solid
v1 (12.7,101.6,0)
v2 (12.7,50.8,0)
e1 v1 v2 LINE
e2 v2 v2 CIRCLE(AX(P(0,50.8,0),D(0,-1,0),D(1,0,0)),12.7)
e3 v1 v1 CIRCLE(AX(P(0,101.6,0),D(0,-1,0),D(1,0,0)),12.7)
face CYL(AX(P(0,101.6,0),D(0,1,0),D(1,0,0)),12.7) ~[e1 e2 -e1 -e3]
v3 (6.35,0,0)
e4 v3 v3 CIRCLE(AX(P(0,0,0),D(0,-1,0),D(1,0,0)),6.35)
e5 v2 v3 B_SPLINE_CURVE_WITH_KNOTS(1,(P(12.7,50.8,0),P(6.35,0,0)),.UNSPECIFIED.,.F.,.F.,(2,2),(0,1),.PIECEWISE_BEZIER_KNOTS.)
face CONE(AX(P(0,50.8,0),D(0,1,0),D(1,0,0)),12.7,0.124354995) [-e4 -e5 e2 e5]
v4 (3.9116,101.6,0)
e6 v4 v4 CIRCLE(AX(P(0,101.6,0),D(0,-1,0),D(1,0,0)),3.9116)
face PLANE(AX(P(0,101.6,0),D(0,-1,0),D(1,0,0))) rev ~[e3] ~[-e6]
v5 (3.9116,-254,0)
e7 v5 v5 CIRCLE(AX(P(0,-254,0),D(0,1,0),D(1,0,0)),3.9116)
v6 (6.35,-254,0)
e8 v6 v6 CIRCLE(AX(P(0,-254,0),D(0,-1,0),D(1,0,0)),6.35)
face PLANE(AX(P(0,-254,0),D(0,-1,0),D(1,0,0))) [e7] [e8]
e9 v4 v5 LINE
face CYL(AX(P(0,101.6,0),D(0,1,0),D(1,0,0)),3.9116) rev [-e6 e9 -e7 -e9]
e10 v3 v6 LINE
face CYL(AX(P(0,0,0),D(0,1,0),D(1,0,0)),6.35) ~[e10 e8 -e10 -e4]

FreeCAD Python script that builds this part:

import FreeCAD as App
import Part
import Sketcher

V = App.Vector
Q = App.Units.Quantity

doc = App.newDocument("Part")
body = doc.addObject("PartDesign::Body", "Body")

# Sketch on XZ plane
sketch1 = doc.addObject("Sketcher::SketchObject", "Sketch")
body.addObject(sketch1)
sketch1.AttachmentSupport = (doc.XZ_Plane, [""])
sketch1.MapMode = "FlatFace"
sketch1.addGeometry(Part.Circle(V(0, 0, 0), V(0, 0, 1), 6), False)
sketch1.addConstraint(Sketcher.Constraint("Coincident", 0, 3, -1, 1))
sketch1.addConstraint(Sketcher.Constraint("Diameter", 0, Q("0.5 in")))
pad1 = doc.addObject("PartDesign::Pad", "Pad")
body.addObject(pad1)
pad1.Profile = sketch1
pad1.Length = Q("10 in")
body2 = doc.addObject("PartDesign::Body", "Body001")

# Sketch on XZ plane
sketch2 = doc.addObject("Sketcher::SketchObject", "Sketch001")
body2.addObject(sketch2)
sketch2.AttachmentSupport = (doc.getObject("XZ_Plane001"), [""])
sketch2.MapMode = "FlatFace"
sketch2.AttachmentOffset = App.Placement(V(0, 0, -4 * 25.4), App.Rotation())
sketch2.addGeometry(Part.Circle(V(0, 0, 0), V(0, 0, 1), 13), False)
sketch2.addConstraint(Sketcher.Constraint("Coincident", 0, 3, -1, 1))
sketch2.addConstraint(Sketcher.Constraint("Diameter", 0, Q("1 in")))
pad2 = doc.addObject("PartDesign::Pad", "Pad001")
body2.addObject(pad2)
pad2.Profile = sketch2
pad2.Length = Q("2 in")
body.AllowCompound = True
doc.recompute()

boolean = doc.addObject("PartDesign::Boolean", "Boolean")
body.addObject(boolean)
boolean.Type = "Fuse"
boolean.addObjects([body2])

# Sketch on XZ plane
sketch3 = doc.addObject("Sketcher::SketchObject", "Sketch002")
body.addObject(sketch3)
sketch3.AttachmentSupport = (doc.XZ_Plane, [""])
sketch3.MapMode = "FlatFace"
sketch3.AttachmentOffset = App.Placement(V(0, 0, -2 * 25.4), App.Rotation())
sketch3.addGeometry(Part.Circle(V(0, 0, 0), V(0, 0, 1), 13), False)
sketch3.addConstraint(Sketcher.Constraint("Coincident", 0, 3, -1, 1))
sketch3.addConstraint(Sketcher.Constraint("Diameter", 0, Q("1 in")))

# Sketch on XZ plane
sketch4 = doc.addObject("Sketcher::SketchObject", "Sketch003")
body.addObject(sketch4)
sketch4.AttachmentSupport = (doc.XZ_Plane, [""])
sketch4.MapMode = "FlatFace"
sketch4.addGeometry(Part.Circle(V(0, 0, 0), V(0, 0, 1), 6), False)
sketch4.addConstraint(Sketcher.Constraint("Coincident", 0, 3, -1, 1))
sketch4.addConstraint(Sketcher.Constraint("Diameter", 0, Q("0.5 in")))

additiveloft = doc.addObject("PartDesign::AdditiveLoft", "AdditiveLoft")
body.addObject(additiveloft)
additiveloft.Profile = sketch3
additiveloft.Sections = [sketch4]

# Sketch on XZ plane
sketch5 = doc.addObject("Sketcher::SketchObject", "Sketch004")
body.addObject(sketch5)
sketch5.AttachmentSupport = (doc.XZ_Plane, [""])
sketch5.MapMode = "FlatFace"
sketch5.AttachmentOffset = App.Placement(V(0, 0, -4 * 25.4), App.Rotation())
sketch5.addGeometry(Part.Circle(V(0, 0, 0), V(0, 0, 1), 3.9), False)
sketch5.addConstraint(Sketcher.Constraint("Coincident", 0, 3, -1, 1))
sketch5.addConstraint(Sketcher.Constraint("Diameter", 0, Q("0.308 in")))
pocket1 = doc.addObject("PartDesign::Pocket", "Pocket")
body.addObject(pocket1)
pocket1.Profile = sketch5
pocket1.Length = Q("16 in")
pocket1.Reversed = True

doc.recompute()
